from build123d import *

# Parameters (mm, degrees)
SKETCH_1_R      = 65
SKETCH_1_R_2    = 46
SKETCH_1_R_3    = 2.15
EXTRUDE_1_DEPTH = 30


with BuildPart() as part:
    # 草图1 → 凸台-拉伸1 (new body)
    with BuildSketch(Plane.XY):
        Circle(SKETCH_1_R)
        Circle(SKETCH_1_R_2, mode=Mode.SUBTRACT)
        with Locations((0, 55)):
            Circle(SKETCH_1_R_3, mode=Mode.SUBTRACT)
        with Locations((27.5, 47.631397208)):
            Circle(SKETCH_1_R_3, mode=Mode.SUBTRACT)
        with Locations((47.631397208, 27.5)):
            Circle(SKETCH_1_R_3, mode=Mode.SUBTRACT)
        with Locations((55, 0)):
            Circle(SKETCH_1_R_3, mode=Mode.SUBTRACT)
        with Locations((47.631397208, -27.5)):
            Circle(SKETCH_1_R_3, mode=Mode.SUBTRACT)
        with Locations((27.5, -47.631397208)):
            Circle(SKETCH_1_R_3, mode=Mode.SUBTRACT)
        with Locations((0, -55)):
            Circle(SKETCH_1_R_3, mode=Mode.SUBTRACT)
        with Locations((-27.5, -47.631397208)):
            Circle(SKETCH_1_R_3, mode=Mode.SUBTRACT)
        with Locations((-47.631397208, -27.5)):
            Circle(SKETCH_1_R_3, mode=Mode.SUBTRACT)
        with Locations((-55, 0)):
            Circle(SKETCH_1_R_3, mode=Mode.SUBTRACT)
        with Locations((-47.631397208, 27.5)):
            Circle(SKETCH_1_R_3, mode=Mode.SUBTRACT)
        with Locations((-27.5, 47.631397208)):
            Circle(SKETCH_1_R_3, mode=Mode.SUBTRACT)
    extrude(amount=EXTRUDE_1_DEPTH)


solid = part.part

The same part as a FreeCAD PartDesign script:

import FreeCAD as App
import Part
import Sketcher
Q = App.Units.Quantity

doc = App.newDocument("Part")
params = doc.addObject("Spreadsheet::Sheet", "Params")
for row, (alias, value) in enumerate([
    ("sketch1_diameter", "130 mm"),
    ("sketch1_diameter2", "92 mm"),
    ("sketch1_diameter3", "4.3 mm"),
    ("pad1_length", "30 mm"),
], start=1):
    params.set(f"A{row}", alias)
    params.set(f"B{row}", "=" + value)
    params.setAlias(f"B{row}", alias)

body = doc.addObject("PartDesign::Body", "Body")

# Sketch on XY plane
sketch1 = body.newObject("Sketcher::SketchObject", "Sketch")
sketch1.AttachmentSupport = (doc.getObject("XY_Plane"), [""])
sketch1.MapMode = "FlatFace"
sketch1.addGeometry([
    Part.Circle(App.Vector(0, 0, 0), App.Vector(0, 0, 1), 65),  # 0
    Part.Circle(App.Vector(-27.5, -47.6, 0), App.Vector(0, 0, 1), 2.1),  # 1
    Part.Circle(App.Vector(-47.6, -27.5, 0), App.Vector(0, 0, 1), 2.1),  # 2
    Part.Circle(App.Vector(0, -55, 0), App.Vector(0, 0, 1), 2.1),  # 3
    Part.Circle(App.Vector(27.5, -47.6, 0), App.Vector(0, 0, 1), 2.1),  # 4
    Part.Circle(App.Vector(47.6, -27.5, 0), App.Vector(0, 0, 1), 2.1),  # 5
    Part.Circle(App.Vector(-55, 0, 0), App.Vector(0, 0, 1), 2.1),  # 6
    Part.Circle(App.Vector(-47.6, 27.5, 0), App.Vector(0, 0, 1), 2.1),  # 7
    Part.Circle(App.Vector(-27.5, 47.6, 0), App.Vector(0, 0, 1), 2.1),  # 8
    Part.Circle(App.Vector(0, 0, 0), App.Vector(0, 0, 1), 46),  # 9
    Part.Circle(App.Vector(55, 0, 0), App.Vector(0, 0, 1), 2.1),  # 10
    Part.Circle(App.Vector(47.6, 27.5, 0), App.Vector(0, 0, 1), 2.1),  # 11
    Part.Circle(App.Vector(0, 55, 0), App.Vector(0, 0, 1), 2.1),  # 12
    Part.Circle(App.Vector(27.5, 47.6, 0), App.Vector(0, 0, 1), 2.1),  # 13
], False)
sketch1.addConstraint([
    Sketcher.Constraint("Coincident", 0, 3, -1, 1),
    Sketcher.Constraint("Coincident", 9, 3, -1, 1),
    Sketcher.Constraint("Equal", 1, 2),
    Sketcher.Constraint("Equal", 2, 3),
    Sketcher.Constraint("Equal", 3, 4),
    Sketcher.Constraint("Equal", 4, 5),
    Sketcher.Constraint("Equal", 5, 6),
    Sketcher.Constraint("Equal", 6, 7),
    Sketcher.Constraint("Equal", 7, 8),
    Sketcher.Constraint("Equal", 8, 10),
    Sketcher.Constraint("Equal", 10, 11),
    Sketcher.Constraint("Equal", 11, 12),
    Sketcher.Constraint("Equal", 12, 13),
    Sketcher.Constraint("Symmetric", 5, 3, 7, 3, -1, 1),
    Sketcher.Constraint("Symmetric", 4, 3, 8, 3, -1, 1),
    Sketcher.Constraint("Symmetric", 6, 3, 10, 3, -1, 1),
    Sketcher.Constraint("Symmetric", 2, 3, 11, 3, -1, 1),
    Sketcher.Constraint("Symmetric", 3, 3, 12, 3, -1, 1),
    Sketcher.Constraint("Symmetric", 1, 3, 13, 3, -1, 1),
    Sketcher.Constraint("Symmetric", 1, 3, 4, 3, -2),
    Sketcher.Constraint("Symmetric", 2, 3, 5, 3, -2),
    Sketcher.Constraint("PointOnObject", 3, 3, -2),
    Sketcher.Constraint("PointOnObject", 6, 3, -1),
    Sketcher.Constraint("Diameter", 0, Q("130 mm")),
    Sketcher.Constraint("Diameter", 9, Q("92 mm")),
    Sketcher.Constraint("Diameter", 1, Q("4.3 mm")),
    Sketcher.Constraint("DistanceY", 3, 3, -1, 1, Q("55 mm")),
    Sketcher.Constraint("DistanceX", 6, 3, -1, 1, Q("55 mm")),
    Sketcher.Constraint("DistanceX", 1, 3, 4, 3, Q("55 mm")),
    Sketcher.Constraint("DistanceY", 2, 3, 7, 3, Q("55 mm")),
    Sketcher.Constraint("DistanceY", 1, 3, -1, 1, Q("47.631397 mm")),
    Sketcher.Constraint("DistanceX", 2, 3, -1, 1, Q("47.631397 mm")),
])
sketch1.setExpression("Constraints[23]", "Params.sketch1_diameter")
sketch1.setExpression("Constraints[24]", "Params.sketch1_diameter2")
sketch1.setExpression("Constraints[25]", "Params.sketch1_diameter3")
pad1 = body.newObject("PartDesign::Pad", "Pad")
pad1.Profile = sketch1
pad1.setExpression("Length", "Params.pad1_length")

doc.recompute()
